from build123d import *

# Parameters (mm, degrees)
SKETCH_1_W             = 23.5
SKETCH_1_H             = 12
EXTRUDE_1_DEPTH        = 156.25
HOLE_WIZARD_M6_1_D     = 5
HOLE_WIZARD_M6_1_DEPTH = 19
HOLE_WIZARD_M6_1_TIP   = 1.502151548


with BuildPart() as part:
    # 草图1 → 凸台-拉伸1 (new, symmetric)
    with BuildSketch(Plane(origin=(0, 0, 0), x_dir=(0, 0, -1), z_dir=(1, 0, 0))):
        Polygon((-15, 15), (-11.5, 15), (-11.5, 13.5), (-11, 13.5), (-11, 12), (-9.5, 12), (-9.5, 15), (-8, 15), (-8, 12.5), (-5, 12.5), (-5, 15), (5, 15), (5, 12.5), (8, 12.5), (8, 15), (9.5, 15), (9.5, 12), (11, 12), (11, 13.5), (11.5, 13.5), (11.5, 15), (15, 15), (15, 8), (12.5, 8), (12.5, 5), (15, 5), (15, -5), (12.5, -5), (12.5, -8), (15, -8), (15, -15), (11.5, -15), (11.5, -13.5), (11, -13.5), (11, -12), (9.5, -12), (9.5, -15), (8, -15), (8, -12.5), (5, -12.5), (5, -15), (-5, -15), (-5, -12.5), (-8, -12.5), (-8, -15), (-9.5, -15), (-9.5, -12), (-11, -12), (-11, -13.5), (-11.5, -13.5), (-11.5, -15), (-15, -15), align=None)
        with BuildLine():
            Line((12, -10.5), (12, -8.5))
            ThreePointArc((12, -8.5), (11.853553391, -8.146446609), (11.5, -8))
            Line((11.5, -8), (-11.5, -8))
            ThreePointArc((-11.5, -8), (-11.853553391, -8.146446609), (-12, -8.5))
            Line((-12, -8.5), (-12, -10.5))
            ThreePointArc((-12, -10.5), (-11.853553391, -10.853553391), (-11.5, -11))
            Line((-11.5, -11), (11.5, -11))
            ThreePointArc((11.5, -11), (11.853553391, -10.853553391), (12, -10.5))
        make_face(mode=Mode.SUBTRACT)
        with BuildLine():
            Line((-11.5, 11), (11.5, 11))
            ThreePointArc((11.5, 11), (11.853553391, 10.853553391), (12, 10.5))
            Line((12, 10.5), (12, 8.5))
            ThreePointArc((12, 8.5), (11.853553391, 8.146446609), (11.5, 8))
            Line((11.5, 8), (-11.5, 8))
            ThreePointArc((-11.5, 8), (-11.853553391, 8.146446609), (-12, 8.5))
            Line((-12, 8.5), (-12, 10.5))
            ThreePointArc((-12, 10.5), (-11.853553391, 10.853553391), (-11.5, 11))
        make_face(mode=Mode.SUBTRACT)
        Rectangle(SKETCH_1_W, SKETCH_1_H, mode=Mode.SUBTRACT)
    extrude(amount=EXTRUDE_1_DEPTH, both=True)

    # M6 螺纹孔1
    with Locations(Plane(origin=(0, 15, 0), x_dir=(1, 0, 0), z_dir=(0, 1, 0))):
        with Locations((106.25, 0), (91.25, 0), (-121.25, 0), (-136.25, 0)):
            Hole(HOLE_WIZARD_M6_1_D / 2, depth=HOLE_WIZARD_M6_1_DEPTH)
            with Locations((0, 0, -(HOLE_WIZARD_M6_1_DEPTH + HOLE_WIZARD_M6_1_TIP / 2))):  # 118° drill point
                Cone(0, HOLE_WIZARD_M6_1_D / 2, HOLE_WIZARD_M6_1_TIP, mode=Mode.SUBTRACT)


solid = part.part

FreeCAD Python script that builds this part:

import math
import FreeCAD as App
import Part
import Sketcher

doc = App.newDocument("Part")
body = doc.addObject("PartDesign::Body", "Body")

# Sketch on YZ plane
sketch1 = doc.addObject("Sketcher::SketchObject", "Sketch")
body.addObject(sketch1)
sketch1.AttachmentSupport = (doc.YZ_Plane, [""])
sketch1.MapMode = "FlatFace"
sketch1.addGeometry([
    Part.LineSegment(App.Vector(15, 11.5, 0), App.Vector(15, 15, 0)),  # 0
    Part.LineSegment(App.Vector(15, 15, 0), App.Vector(-15, 15, 0)),  # 1
    Part.LineSegment(App.Vector(-15, 15, 0), App.Vector(-15, 11.5, 0)),  # 2
    Part.LineSegment(App.Vector(-15, 11.5, 0), App.Vector(-13.5, 11.5, 0)),  # 3
    Part.LineSegment(App.Vector(-13.5, 11.5, 0), App.Vector(-13.5, 11, 0)),  # 4
    Part.LineSegment(App.Vector(-13.5, 11, 0), App.Vector(-12, 11, 0)),  # 5
    Part.LineSegment(App.Vector(-12, 11, 0), App.Vector(-12, 9.5, 0)),  # 6
    Part.LineSegment(App.Vector(-12, 9.5, 0), App.Vector(-15, 9.5, 0)),  # 7
    Part.LineSegment(App.Vector(-15, 9.5, 0), App.Vector(-15, 8, 0)),  # 8
    Part.LineSegment(App.Vector(-15, 8, 0), App.Vector(-12.5, 8, 0)),  # 9
    Part.LineSegment(App.Vector(-12.5, 8, 0), App.Vector(-12.5, 5, 0)),  # 10
    Part.LineSegment(App.Vector(-12.5, 5, 0), App.Vector(-15, 5, 0)),  # 11
    Part.LineSegment(App.Vector(-15, 5, 0), App.Vector(-15, -5, 0)),  # 12
    Part.LineSegment(App.Vector(-15, -5, 0), App.Vector(-12.5, -5, 0)),  # 13
    Part.LineSegment(App.Vector(-12.5, -5, 0), App.Vector(-12.5, -8, 0)),  # 14
    Part.LineSegment(App.Vector(-12.5, -8, 0), App.Vector(-15, -8, 0)),  # 15
    Part.LineSegment(App.Vector(-15, -8, 0), App.Vector(-15, -9.5, 0)),  # 16
    Part.LineSegment(App.Vector(-15, -9.5, 0), App.Vector(-12, -9.5, 0)),  # 17
    Part.LineSegment(App.Vector(-12, -9.5, 0), App.Vector(-12, -11, 0)),  # 18
    Part.LineSegment(App.Vector(-12, -11, 0), App.Vector(-13.5, -11, 0)),  # 19
    Part.LineSegment(App.Vector(-13.5, -11, 0), App.Vector(-13.5, -11.5, 0)),  # 20
    Part.LineSegment(App.Vector(-13.5, -11.5, 0), App.Vector(-15, -11.5, 0)),  # 21
    Part.LineSegment(App.Vector(-15, -11.5, 0), App.Vector(-15, -15, 0)),  # 22
    Part.LineSegment(App.Vector(-15, -15, 0), App.Vector(-8, -15, 0)),  # 23
    Part.LineSegment(App.Vector(-8, -15, 0), App.Vector(-8, -12.5, 0)),  # 24
    Part.LineSegment(App.Vector(-8, -12.5, 0), App.Vector(-5, -12.5, 0)),  # 25
    Part.LineSegment(App.Vector(-5, -12.5, 0), App.Vector(-5, -15, 0)),  # 26
    Part.LineSegment(App.Vector(-5, -15, 0), App.Vector(5, -15, 0)),  # 27
    Part.LineSegment(App.Vector(5, -15, 0), App.Vector(5, -12.5, 0)),  # 28
    Part.LineSegment(App.Vector(5, -12.5, 0), App.Vector(8, -12.5, 0)),  # 29
    Part.LineSegment(App.Vector(8, -12.5, 0), App.Vector(8, -15, 0)),  # 30
    Part.LineSegment(App.Vector(8, -15, 0), App.Vector(15, -15, 0)),  # 31
    Part.LineSegment(App.Vector(15, -15, 0), App.Vector(15, -11.5, 0)),  # 32
    Part.LineSegment(App.Vector(15, -11.5, 0), App.Vector(13.5, -11.5, 0)),  # 33
    Part.LineSegment(App.Vector(13.5, -11.5, 0), App.Vector(13.5, -11, 0)),  # 34
    Part.LineSegment(App.Vector(13.5, -11, 0), App.Vector(12, -11, 0)),  # 35
    Part.LineSegment(App.Vector(12, -11, 0), App.Vector(12, -9.5, 0)),  # 36
    Part.LineSegment(App.Vector(12, -9.5, 0), App.Vector(15, -9.5, 0)),  # 37
    Part.LineSegment(App.Vector(15, -9.5, 0), App.Vector(15, -8, 0)),  # 38
    Part.LineSegment(App.Vector(15, -8, 0), App.Vector(12.5, -8, 0)),  # 39
    Part.LineSegment(App.Vector(12.5, -8, 0), App.Vector(12.5, -5, 0)),  # 40
    Part.LineSegment(App.Vector(12.5, -5, 0), App.Vector(15, -5, 0)),  # 41
    Part.LineSegment(App.Vector(15, -5, 0), App.Vector(15, 5, 0)),  # 42
    Part.LineSegment(App.Vector(15, 5, 0), App.Vector(12.5, 5, 0)),  # 43
    Part.LineSegment(App.Vector(12.5, 5, 0), App.Vector(12.5, 8, 0)),  # 44
    Part.LineSegment(App.Vector(12.5, 8, 0), App.Vector(15, 8, 0)),  # 45
    Part.LineSegment(App.Vector(15, 8, 0), App.Vector(15, 9.5, 0)),  # 46
    Part.LineSegment(App.Vector(15, 9.5, 0), App.Vector(12, 9.5, 0)),  # 47
    Part.LineSegment(App.Vector(12, 9.5, 0), App.Vector(12, 11, 0)),  # 48
    Part.LineSegment(App.Vector(12, 11, 0), App.Vector(13.5, 11, 0)),  # 49
    Part.LineSegment(App.Vector(13.5, 11, 0), App.Vector(13.5, 11.5, 0)),  # 50
    Part.LineSegment(App.Vector(13.5, 11.5, 0), App.Vector(15, 11.5, 0)),  # 51
    Part.ArcOfCircle(Part.Circle(App.Vector(-10.5, -11.5, 0), App.Vector(0, 0, 1), 0.5), math.radians(180), math.radians(270)),  # 52
    Part.LineSegment(App.Vector(-11, -11.5, 0), App.Vector(-11, 11.5, 0)),  # 53
    Part.ArcOfCircle(Part.Circle(App.Vector(-10.5, 11.5, 0), App.Vector(0, 0, 1), 0.5), math.radians(90), math.radians(180)),  # 54
    Part.LineSegment(App.Vector(-10.5, 12, 0), App.Vector(-8.5, 12, 0)),  # 55
    Part.ArcOfCircle(Part.Circle(App.Vector(-8.5, 11.5, 0), App.Vector(0, 0, 1), 0.5), math.radians(0), math.radians(90)),  # 56
    Part.LineSegment(App.Vector(-8, 11.5, 0), App.Vector(-8, -11.5, 0)),  # 57
    Part.ArcOfCircle(Part.Circle(App.Vector(-8.5, -11.5, 0), App.Vector(0, 0, 1), 0.5), math.radians(-90), math.radians(0)),  # 58
    Part.LineSegment(App.Vector(-8.5, -12, 0), App.Vector(-10.5, -12, 0)),  # 59
    Part.LineSegment(App.Vector(-6, 11.75, 0), App.Vector(6, 11.75, 0)),  # 60
    Part.LineSegment(App.Vector(6, 11.75, 0), App.Vector(6, -11.75, 0)),  # 61
    Part.LineSegment(App.Vector(6, -11.75, 0), App.Vector(-6, -11.75, 0)),  # 62
    Part.LineSegment(App.Vector(-6, -11.75, 0), App.Vector(-6, 11.75, 0)),  # 63
    Part.LineSegment(App.Vector(11, 11.5, 0), App.Vector(11, -11.5, 0)),  # 64
    Part.ArcOfCircle(Part.Circle(App.Vector(10.5, -11.5, 0), App.Vector(0, 0, 1), 0.5), math.radians(-90), math.radians(0)),  # 65
    Part.LineSegment(App.Vector(10.5, -12, 0), App.Vector(8.5, -12, 0)),  # 66
    Part.ArcOfCircle(Part.Circle(App.Vector(8.5, -11.5, 0), App.Vector(0, 0, 1), 0.5), math.radians(180), math.radians(270)),  # 67
    Part.LineSegment(App.Vector(8, -11.5, 0), App.Vector(8, 11.5, 0)),  # 68
    Part.ArcOfCircle(Part.Circle(App.Vector(8.5, 11.5, 0), App.Vector(0, 0, 1), 0.5), math.radians(90), math.radians(180)),  # 69
    Part.LineSegment(App.Vector(8.5, 12, 0), App.Vector(10.5, 12, 0)),  # 70
    Part.ArcOfCircle(Part.Circle(App.Vector(10.5, 11.5, 0), App.Vector(0, 0, 1), 0.5), math.radians(0), math.radians(90)),  # 71
], False)
sketch1.addConstraint([
    Sketcher.Constraint("Coincident", 0, 2, 1, 1),
    Sketcher.Constraint("Coincident", 1, 2, 2, 1),
    Sketcher.Constraint("Coincident", 2, 2, 3, 1),
    Sketcher.Constraint("Coincident", 3, 2, 4, 1),
    Sketcher.Constraint("Coincident", 4, 2, 5, 1),
    Sketcher.Constraint("Coincident", 5, 2, 6, 1),
    Sketcher.Constraint("Coincident", 6, 2, 7, 1),
    Sketcher.Constraint("Coincident", 7, 2, 8, 1),
    Sketcher.Constraint("Coincident", 8, 2, 9, 1),
    Sketcher.Constraint("Coincident", 9, 2, 10, 1),
    Sketcher.Constraint("Coincident", 10, 2, 11, 1),
    Sketcher.Constraint("Coincident", 11, 2, 12, 1),
    Sketcher.Constraint("Coincident", 12, 2, 13, 1),
    Sketcher.Constraint("Coincident", 13, 2, 14, 1),
    Sketcher.Constraint("Coincident", 14, 2, 15, 1),
    Sketcher.Constraint("Coincident", 15, 2, 16, 1),
    Sketcher.Constraint("Coincident", 16, 2, 17, 1),
    Sketcher.Constraint("Coincident", 17, 2, 18, 1),
    Sketcher.Constraint("Coincident", 18, 2, 19, 1),
    Sketcher.Constraint("Coincident", 19, 2, 20, 1),
    Sketcher.Constraint("Coincident", 20, 2, 21, 1),
    Sketcher.Constraint("Coincident", 21, 2, 22, 1),
    Sketcher.Constraint("Coincident", 22, 2, 23, 1),
    Sketcher.Constraint("Coincident", 23, 2, 24, 1),
    Sketcher.Constraint("Coincident", 24, 2, 25, 1),
    Sketcher.Constraint("Coincident", 25, 2, 26, 1),
    Sketcher.Constraint("Coincident", 26, 2, 27, 1),
    Sketcher.Constraint("Coincident", 27, 2, 28, 1),
    Sketcher.Constraint("Coincident", 28, 2, 29, 1),
    Sketcher.Constraint("Coincident", 29, 2, 30, 1),
    Sketcher.Constraint("Coincident", 30, 2, 31, 1),
    Sketcher.Constraint("Coincident", 31, 2, 32, 1),
    Sketcher.Constraint("Coincident", 32, 2, 33, 1),
    Sketcher.Constraint("Coincident", 33, 2, 34, 1),
    Sketcher.Constraint("Coincident", 34, 2, 35, 1),
    Sketcher.Constraint("Coincident", 35, 2, 36, 1),
    Sketcher.Constraint("Coincident", 36, 2, 37, 1),
    Sketcher.Constraint("Coincident", 37, 2, 38, 1),
    Sketcher.Constraint("Coincident", 38, 2, 39, 1),
    Sketcher.Constraint("Coincident", 39, 2, 40, 1),
    Sketcher.Constraint("Coincident", 40, 2, 41, 1),
    Sketcher.Constraint("Coincident", 41, 2, 42, 1),
    Sketcher.Constraint("Coincident", 42, 2, 43, 1),
    Sketcher.Constraint("Coincident", 43, 2, 44, 1),
    Sketcher.Constraint("Coincident", 44, 2, 45, 1),
    Sketcher.Constraint("Coincident", 45, 2, 46, 1),
    Sketcher.Constraint("Coincident", 46, 2, 47, 1),
    Sketcher.Constraint("Coincident", 47, 2, 48, 1),
    Sketcher.Constraint("Coincident", 48, 2, 49, 1),
    Sketcher.Constraint("Coincident", 49, 2, 50, 1),
    Sketcher.Constraint("Coincident", 50, 2, 51, 1),
    Sketcher.Constraint("Coincident", 51, 2, 0, 1),
    Sketcher.Constraint("Tangent", 52, 1, 53, 1),
    Sketcher.Constraint("Tangent", 53, 2, 54, 2),
    Sketcher.Constraint("Tangent", 54, 1, 55, 1),
    Sketcher.Constraint("Tangent", 55, 2, 56, 2),
    Sketcher.Constraint("Tangent", 56, 1, 57, 1),
    Sketcher.Constraint("Tangent", 57, 2, 58, 2),
    Sketcher.Constraint("Tangent", 58, 1, 59, 1),
    Sketcher.Constraint("Tangent", 59, 2, 52, 2),
    Sketcher.Constraint("Coincident", 60, 2, 61, 1),
    Sketcher.Constraint("Coincident", 61, 2, 62, 1),
    Sketcher.Constraint("Coincident", 62, 2, 63, 1),
    Sketcher.Constraint("Coincident", 63, 2, 60, 1),
    Sketcher.Constraint("Tangent", 64, 2, 65, 2),
    Sketcher.Constraint("Tangent", 65, 1, 66, 1),
    Sketcher.Constraint("Tangent", 66, 2, 67, 2),
    Sketcher.Constraint("Tangent", 67, 1, 68, 1),
    Sketcher.Constraint("Tangent", 68, 2, 69, 2),
    Sketcher.Constraint("Tangent", 69, 1, 70, 1),
    Sketcher.Constraint("Tangent", 70, 2, 71, 2),
    Sketcher.Constraint("Tangent", 71, 1, 64, 1),
    Sketcher.Constraint("Vertical", 0),
    Sketcher.Constraint("Horizontal", 1),
    Sketcher.Constraint("Vertical", 2),
    Sketcher.Constraint("Horizontal", 3),
    Sketcher.Constraint("Vertical", 4),
    Sketcher.Constraint("Horizontal", 5),
    Sketcher.Constraint("Vertical", 6),
    Sketcher.Constraint("Horizontal", 7),
    Sketcher.Constraint("Vertical", 8),
    Sketcher.Constraint("Horizontal", 9),
    Sketcher.Constraint("Vertical", 10),
    Sketcher.Constraint("Horizontal", 11),
    Sketcher.Constraint("Vertical", 12),
    Sketcher.Constraint("Horizontal", 13),
    Sketcher.Constraint("Vertical", 14),
    Sketcher.Constraint("Horizontal", 15),
    Sketcher.Constraint("Vertical", 16),
    Sketcher.Constraint("Horizontal", 17),
    Sketcher.Constraint("Vertical", 18),
    Sketcher.Constraint("Horizontal", 19),
    Sketcher.Constraint("Vertical", 20),
    Sketcher.Constraint("Horizontal", 21),
    Sketcher.Constraint("Vertical", 22),
    Sketcher.Constraint("Horizontal", 23),
    Sketcher.Constraint("Vertical", 24),
    Sketcher.Constraint("Horizontal", 25),
    Sketcher.Constraint("Vertical", 26),
    Sketcher.Constraint("Horizontal", 27),
    Sketcher.Constraint("Vertical", 28),
    Sketcher.Constraint("Horizontal", 29),
    Sketcher.Constraint("Vertical", 30),
    Sketcher.Constraint("Horizontal", 31),
    Sketcher.Constraint("Vertical", 32),
    Sketcher.Constraint("Horizontal", 33),
    Sketcher.Constraint("Vertical", 34),
    Sketcher.Constraint("Horizontal", 35),
    Sketcher.Constraint("Vertical", 36),
    Sketcher.Constraint("Horizontal", 37),
    Sketcher.Constraint("Vertical", 38),
    Sketcher.Constraint("Horizontal", 39),
    Sketcher.Constraint("Vertical", 40),
    Sketcher.Constraint("Horizontal", 41),
    Sketcher.Constraint("Vertical", 42),
    Sketcher.Constraint("Horizontal", 43),
    Sketcher.Constraint("Vertical", 44),
    Sketcher.Constraint("Horizontal", 45),
    Sketcher.Constraint("Vertical", 46),
    Sketcher.Constraint("Horizontal", 47),
    Sketcher.Constraint("Vertical", 48),
    Sketcher.Constraint("Horizontal", 49),
    Sketcher.Constraint("Vertical", 50),
    Sketcher.Constraint("Horizontal", 51),
    Sketcher.Constraint("Vertical", 53),
    Sketcher.Constraint("Horizontal", 55),
    Sketcher.Constraint("Vertical", 57),
    Sketcher.Constraint("Horizontal", 59),
    Sketcher.Constraint("Horizontal", 60),
    Sketcher.Constraint("Vertical", 61),
    Sketcher.Constraint("Horizontal", 62),
    Sketcher.Constraint("Vertical", 63),
    Sketcher.Constraint("Vertical", 64),
    Sketcher.Constraint("Horizontal", 66),
    Sketcher.Constraint("Vertical", 68),
    Sketcher.Constraint("Horizontal", 70),
    Sketcher.Constraint("Equal", 52, 54),
    Sketcher.Constraint("Equal", 54, 56),
    Sketcher.Constraint("Equal", 56, 58),
    Sketcher.Constraint("Equal", 58, 65),
    Sketcher.Constraint("Equal", 65, 67),
    Sketcher.Constraint("Equal", 67, 69),
    Sketcher.Constraint("Equal", 69, 71),
    Sketcher.Constraint("Symmetric", 54, 3, 65, 3, -1, 1),
    Sketcher.Constraint("Symmetric", 58, 3, 69, 3, -1, 1),
    Sketcher.Constraint("Symmetric", 0, 2, 22, 2, -1, 1),
    Sketcher.Constraint("Symmetric", 1, 2, 31, 2, -1, 1),
    Sketcher.Constraint("Symmetric", 3, 2, 33, 2, -1, 1),
    Sketcher.Constraint("Symmetric", 5, 2, 35, 2, -1, 1),
    Sketcher.Constraint("Symmetric", 7, 2, 37, 2, -1, 1),
    Sketcher.Constraint("Symmetric", 9, 2, 39, 2, -1, 1),
    Sketcher.Constraint("Symmetric", 11, 2, 41, 2, -1, 1),
    Sketcher.Constraint("Symmetric", 13, 2, 43, 2, -1, 1),
    Sketcher.Constraint("Symmetric", 15, 2, 45, 2, -1, 1),
    Sketcher.Constraint("Symmetric", 17, 2, 47, 2, -1, 1),
    Sketcher.Constraint("Symmetric", 19, 2, 49, 2, -1, 1),
    Sketcher.Constraint("Symmetric", 60, 2, 62, 2, -1, 1),
    Sketcher.Constraint("Symmetric", 25, 2, 28, 2, -2),
    Sketcher.Constraint("Symmetric", 21, 2, 32, 2, -2),
    Sketcher.Constraint("Symmetric", 19, 2, 34, 2, -2),
    Sketcher.Constraint("Symmetric", 17, 2, 36, 2, -2),
    Sketcher.Constraint("Symmetric", 15, 2, 38, 2, -2),
    Sketcher.Constraint("Symmetric", 13, 2, 40, 2, -2),
    Sketcher.Constraint("Horizontal", 58, 3, 65, 3),
    Sketcher.Constraint("Horizontal", 71, 3, 2, 2),
    Sketcher.Constraint("Horizontal", 23, 2, 26, 2),
    Sketcher.Constraint("Horizontal", 3, 2, 50, 2),
    Sketcher.Constraint("Vertical", 2, 2, 7, 2),
    Sketcher.Constraint("Vertical", 8, 2, 11, 2),
    Sketcher.Constraint("Vertical", 24, 2, 56, 1),
    Sketcher.Constraint("Vertical", 30, 2, 67, 1),
    Sketcher.Constraint("Equal", 3, 5),
    Sketcher.Constraint("Equal", 17, 25),
    Sketcher.Constraint("Equal", 51, 6),
    Sketcher.Constraint("Equal", 6, 8),
    Sketcher.Constraint("Equal", 47, 10),
    Sketcher.Constraint("Equal", 27, 12),
    Sketcher.Constraint("Equal", 45, 24),
    Sketcher.Constraint("Radius", 52, 0.5),
    Sketcher.Constraint("DistanceX", 1, 2, 1, 1, 30.0),
    Sketcher.Constraint("DistanceX", 7, 2, 7, 1, 3.0),
    Sketcher.Constraint("DistanceX", 23, 1, 23, 2, 7.0),
    Sketcher.Constraint("DistanceX", 55, 1, 55, 2, 2.0),
    Sketcher.Constraint("DistanceX", 60, 1, 60, 2, 12.0),
    Sketcher.Constraint("DistanceY", 53, 1, 53, 2, 23.0),
    Sketcher.Constraint("DistanceX", 9, 1, 9, 2, 2.5),
    Sketcher.Constraint("DistanceY", 0, 1, 0, 2, 3.5),
    Sketcher.Constraint("DistanceY", 61, 2, 61, 1, 23.5),
])
pad1 = doc.addObject("PartDesign::Pad", "Pad")
body.addObject(pad1)
pad1.Profile = sketch1
pad1.Length = 312.5
pad1.Midplane = True

# Sketch on XZ plane
sketch2 = doc.addObject("Sketcher::SketchObject", "Sketch001")
body.addObject(sketch2)
sketch2.AttachmentSupport = (doc.XZ_Plane, [""])
sketch2.MapMode = "FlatFace"
sketch2.AttachmentOffset = App.Placement(App.Vector(0, 0, -15), App.Rotation())
sketch2.addGeometry([
    Part.Circle(App.Vector(106.2, 0, 0), App.Vector(0, 0, 1), 2.5),
    Part.Circle(App.Vector(91.2, 0, 0), App.Vector(0, 0, 1), 2.5),
    Part.Circle(App.Vector(-121.2, 0, 0), App.Vector(0, 0, 1), 2.5),
    Part.Circle(App.Vector(-136.2, 0, 0), App.Vector(0, 0, 1), 2.5),
], False)
sketch2.addConstraint([
    Sketcher.Constraint("Equal", 0, 1),
    Sketcher.Constraint("Equal", 1, 2),
    Sketcher.Constraint("Equal", 2, 3),
    Sketcher.Constraint("PointOnObject", 0, 3, -1),
    Sketcher.Constraint("PointOnObject", 1, 3, -1),
    Sketcher.Constraint("PointOnObject", 2, 3, -1),
    Sketcher.Constraint("PointOnObject", 3, 3, -1),
    Sketcher.Constraint("Diameter", 0, 5.0),
    Sketcher.Constraint("DistanceX", 1, 3, 0, 3, 15.0),
    Sketcher.Constraint("DistanceX", 3, 3, 2, 3, 15.0),
    Sketcher.Constraint("DistanceX", 2, 3, 1, 3, 212.5),
    Sketcher.Constraint("DistanceX", -1, 1, 0, 3, 106.25),
])
doc.recompute()
hole = doc.addObject("PartDesign::Hole", "Hole")
body.addObject(hole)
hole.Profile = sketch2
hole.ThreadType = "None"
hole.Diameter = 5
hole.DepthType = "Dimension"
hole.Depth = 19
hole.DrillPoint = "Angled"
hole.DrillPointAngle = 118
hole.Reversed = True

doc.recompute()
